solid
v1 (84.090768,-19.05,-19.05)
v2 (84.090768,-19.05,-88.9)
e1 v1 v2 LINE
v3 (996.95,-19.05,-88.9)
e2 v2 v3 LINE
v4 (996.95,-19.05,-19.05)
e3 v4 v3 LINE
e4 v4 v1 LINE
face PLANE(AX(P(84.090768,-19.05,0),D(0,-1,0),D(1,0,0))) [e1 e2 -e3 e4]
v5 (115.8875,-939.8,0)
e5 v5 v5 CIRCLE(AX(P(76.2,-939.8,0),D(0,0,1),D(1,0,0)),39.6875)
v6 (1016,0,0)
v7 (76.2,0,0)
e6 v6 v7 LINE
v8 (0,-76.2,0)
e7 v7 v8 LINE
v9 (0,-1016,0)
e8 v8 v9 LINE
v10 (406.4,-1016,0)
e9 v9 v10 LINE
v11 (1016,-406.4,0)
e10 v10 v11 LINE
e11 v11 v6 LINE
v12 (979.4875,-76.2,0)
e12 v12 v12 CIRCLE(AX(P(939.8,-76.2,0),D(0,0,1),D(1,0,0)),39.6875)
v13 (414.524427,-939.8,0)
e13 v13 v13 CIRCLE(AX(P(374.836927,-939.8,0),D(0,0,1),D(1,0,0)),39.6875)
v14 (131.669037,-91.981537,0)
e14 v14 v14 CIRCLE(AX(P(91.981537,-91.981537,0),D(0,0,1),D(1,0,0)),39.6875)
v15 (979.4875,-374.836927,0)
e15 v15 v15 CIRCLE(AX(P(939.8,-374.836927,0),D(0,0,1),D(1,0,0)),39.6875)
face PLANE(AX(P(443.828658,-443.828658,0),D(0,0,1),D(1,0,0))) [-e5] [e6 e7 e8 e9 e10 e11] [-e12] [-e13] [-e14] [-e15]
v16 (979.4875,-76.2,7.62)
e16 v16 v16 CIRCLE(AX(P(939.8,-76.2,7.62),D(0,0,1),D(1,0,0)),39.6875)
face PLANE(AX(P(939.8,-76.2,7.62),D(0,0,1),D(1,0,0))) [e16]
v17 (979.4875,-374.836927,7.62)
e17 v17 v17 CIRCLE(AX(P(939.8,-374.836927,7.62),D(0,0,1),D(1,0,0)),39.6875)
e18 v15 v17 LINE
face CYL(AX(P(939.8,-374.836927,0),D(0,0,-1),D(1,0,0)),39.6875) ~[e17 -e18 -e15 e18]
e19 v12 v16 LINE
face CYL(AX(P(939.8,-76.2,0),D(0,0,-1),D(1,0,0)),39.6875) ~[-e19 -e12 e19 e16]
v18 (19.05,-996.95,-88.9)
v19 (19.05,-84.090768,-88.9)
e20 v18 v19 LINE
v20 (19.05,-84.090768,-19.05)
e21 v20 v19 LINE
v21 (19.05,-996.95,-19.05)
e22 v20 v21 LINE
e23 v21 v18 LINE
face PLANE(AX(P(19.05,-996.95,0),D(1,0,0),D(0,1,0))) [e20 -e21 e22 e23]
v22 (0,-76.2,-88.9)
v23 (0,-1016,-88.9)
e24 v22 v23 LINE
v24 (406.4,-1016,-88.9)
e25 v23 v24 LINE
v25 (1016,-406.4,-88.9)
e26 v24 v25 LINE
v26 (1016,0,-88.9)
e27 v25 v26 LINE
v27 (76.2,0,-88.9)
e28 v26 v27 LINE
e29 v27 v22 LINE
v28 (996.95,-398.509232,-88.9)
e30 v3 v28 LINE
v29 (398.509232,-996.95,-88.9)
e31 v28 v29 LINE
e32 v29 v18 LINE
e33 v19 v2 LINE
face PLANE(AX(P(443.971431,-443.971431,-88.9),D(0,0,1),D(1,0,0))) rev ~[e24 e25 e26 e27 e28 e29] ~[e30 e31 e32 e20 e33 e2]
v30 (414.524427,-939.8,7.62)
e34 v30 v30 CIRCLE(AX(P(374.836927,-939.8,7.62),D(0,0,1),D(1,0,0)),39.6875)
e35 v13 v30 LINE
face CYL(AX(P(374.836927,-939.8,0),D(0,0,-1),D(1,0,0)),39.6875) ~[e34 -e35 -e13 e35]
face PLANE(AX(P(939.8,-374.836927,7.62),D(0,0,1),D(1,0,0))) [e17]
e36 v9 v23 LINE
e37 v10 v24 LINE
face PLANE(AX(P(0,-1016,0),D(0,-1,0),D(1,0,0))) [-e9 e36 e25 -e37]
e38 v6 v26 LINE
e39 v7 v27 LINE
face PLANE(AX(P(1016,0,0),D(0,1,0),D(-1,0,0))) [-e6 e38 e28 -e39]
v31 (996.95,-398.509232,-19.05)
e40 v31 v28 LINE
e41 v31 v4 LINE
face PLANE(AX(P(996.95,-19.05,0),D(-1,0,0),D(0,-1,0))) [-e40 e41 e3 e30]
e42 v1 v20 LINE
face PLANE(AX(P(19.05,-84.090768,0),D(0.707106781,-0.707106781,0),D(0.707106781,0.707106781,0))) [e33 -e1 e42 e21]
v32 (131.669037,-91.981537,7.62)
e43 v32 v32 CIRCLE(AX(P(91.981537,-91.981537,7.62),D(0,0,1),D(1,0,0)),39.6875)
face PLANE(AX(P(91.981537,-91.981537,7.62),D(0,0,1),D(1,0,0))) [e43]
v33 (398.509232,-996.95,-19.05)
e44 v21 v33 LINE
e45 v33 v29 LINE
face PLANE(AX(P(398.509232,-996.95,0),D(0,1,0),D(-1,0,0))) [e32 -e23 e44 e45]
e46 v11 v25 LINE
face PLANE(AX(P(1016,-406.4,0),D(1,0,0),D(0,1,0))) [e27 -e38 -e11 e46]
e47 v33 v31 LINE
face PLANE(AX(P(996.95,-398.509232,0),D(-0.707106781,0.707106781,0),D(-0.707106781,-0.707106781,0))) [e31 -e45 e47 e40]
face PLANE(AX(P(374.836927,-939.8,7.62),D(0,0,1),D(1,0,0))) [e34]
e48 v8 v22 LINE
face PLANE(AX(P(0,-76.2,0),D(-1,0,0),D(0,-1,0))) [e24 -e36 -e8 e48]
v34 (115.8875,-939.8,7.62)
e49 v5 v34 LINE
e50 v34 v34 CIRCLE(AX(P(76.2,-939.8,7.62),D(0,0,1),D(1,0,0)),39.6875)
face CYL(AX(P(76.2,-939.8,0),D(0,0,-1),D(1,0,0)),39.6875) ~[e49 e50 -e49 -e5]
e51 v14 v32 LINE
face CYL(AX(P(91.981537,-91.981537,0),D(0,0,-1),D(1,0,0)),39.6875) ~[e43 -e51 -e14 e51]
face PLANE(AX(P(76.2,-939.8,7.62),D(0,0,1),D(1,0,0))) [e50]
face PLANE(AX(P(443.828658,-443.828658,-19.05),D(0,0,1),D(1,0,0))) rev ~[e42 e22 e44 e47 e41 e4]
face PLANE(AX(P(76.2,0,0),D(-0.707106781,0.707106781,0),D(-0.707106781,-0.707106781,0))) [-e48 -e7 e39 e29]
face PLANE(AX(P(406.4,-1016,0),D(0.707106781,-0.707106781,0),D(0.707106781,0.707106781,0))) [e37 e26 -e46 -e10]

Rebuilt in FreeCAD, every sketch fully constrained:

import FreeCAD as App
import Part
import Sketcher
Q = App.Units.Quantity

doc = App.newDocument("Part")
body = doc.addObject("PartDesign::Body", "Body")

sketch1 = body.newObject("Sketcher::SketchObject", "Sketch")
sketch1.AttachmentSupport = (doc.getObject("XY_Plane"), [""])
sketch1.MapMode = "FlatFace"
sketch1.addGeometry([
    Part.LineSegment(App.Vector(0, -76.2, 0), App.Vector(0, -1016, 0)),
    Part.LineSegment(App.Vector(0, -1016, 0), App.Vector(406.4, -1016, 0)),
    Part.LineSegment(App.Vector(406.4, -1016, 0), App.Vector(1016, -406.4, 0)),
    Part.LineSegment(App.Vector(1016, -406.4, 0), App.Vector(1016, 0, 0)),
    Part.LineSegment(App.Vector(1016, 0, 0), App.Vector(76.2, 0, 0)),
    Part.LineSegment(App.Vector(76.2, 0, 0), App.Vector(0, -76.2, 0)),
    Part.LineSegment(App.Vector(996.95, -398.509232, 0), App.Vector(398.509232, -996.95, 0)),
    Part.LineSegment(App.Vector(398.509232, -996.95, 0), App.Vector(19.05, -996.95, 0)),
    Part.LineSegment(App.Vector(19.05, -996.95, 0), App.Vector(19.05, -84.090768, 0)),
    Part.LineSegment(App.Vector(19.05, -84.090768, 0), App.Vector(84.090768, -19.05, 0)),
    Part.LineSegment(App.Vector(84.090768, -19.05, 0), App.Vector(996.95, -19.05, 0)),
    Part.LineSegment(App.Vector(996.95, -19.05, 0), App.Vector(996.95, -398.509232, 0)),
], False)
sketch1.addConstraint([
    Sketcher.Constraint("Coincident", 0, 2, 1, 1),
    Sketcher.Constraint("Coincident", 1, 2, 2, 1),
    Sketcher.Constraint("Coincident", 2, 2, 3, 1),
    Sketcher.Constraint("Coincident", 3, 2, 4, 1),
    Sketcher.Constraint("Coincident", 4, 2, 5, 1),
    Sketcher.Constraint("Coincident", 5, 2, 0, 1),
    Sketcher.Constraint("Coincident", 6, 2, 7, 1),
    Sketcher.Constraint("Coincident", 7, 2, 8, 1),
    Sketcher.Constraint("Coincident", 8, 2, 9, 1),
    Sketcher.Constraint("Coincident", 9, 2, 10, 1),
    Sketcher.Constraint("Coincident", 10, 2, 11, 1),
    Sketcher.Constraint("Coincident", 11, 2, 6, 1),
    Sketcher.Constraint("Vertical", 0),
    Sketcher.Constraint("Horizontal", 1),
    Sketcher.Constraint("Vertical", 3),
    Sketcher.Constraint("Horizontal", 4),
    Sketcher.Constraint("Horizontal", 7),
    Sketcher.Constraint("Vertical", 8),
    Sketcher.Constraint("Horizontal", 10),
    Sketcher.Constraint("Vertical", 11),
    Sketcher.Constraint("PointOnObject", 0, 2, -2),
    Sketcher.Constraint("PointOnObject", 3, 2, -1),
    Sketcher.Constraint("Parallel", 2, 5),
    Sketcher.Constraint("Parallel", 5, 6),
    Sketcher.Constraint("Parallel", 6, 9),
    Sketcher.Constraint("Equal", 4, 0),
    Sketcher.Constraint("Equal", 1, 3),
    Sketcher.Constraint("Equal", 10, 8),
    Sketcher.Constraint("DistanceX", 1, 1, 1, 2, Q("16 in")),
    Sketcher.Constraint("DistanceX", 4, 2, 4, 1, Q("37 in")),
    Sketcher.Constraint("DistanceY", 0, 2, -1, 1, Q("40 in")),
    Sketcher.Constraint("DistanceY", 7, 2, 9, 2, Q("38.5 in")),
    Sketcher.Constraint("DistanceY", 6, 2, -1, 1, Q("39.25 in")),
    Sketcher.Constraint("DistanceX", -1, 1, 7, 2, Q("0.75 in")),
    Sketcher.Constraint("DistanceX", 7, 2, 7, 1, 379.459232),
    Sketcher.Constraint("DistanceX", 10, 1, 10, 2, 912.859232),
])
pad1 = body.newObject("PartDesign::Pad", "Pad")
pad1.Profile = sketch1
pad1.Length = Q("3.5 in")
pad1.Reversed = True

sketch2 = body.newObject("Sketcher::SketchObject", "Sketch001")
sketch2.AttachmentSupport = (doc.getObject("XY_Plane"), [""])
sketch2.MapMode = "FlatFace"
sketch2.addGeometry([
    Part.LineSegment(App.Vector(19.05, -84.090768, 0), App.Vector(19.05, -996.95, 0)),
    Part.LineSegment(App.Vector(19.05, -996.95, 0), App.Vector(398.509232, -996.95, 0)),
    Part.LineSegment(App.Vector(398.509232, -996.95, 0), App.Vector(996.95, -398.509232, 0)),
    Part.LineSegment(App.Vector(996.95, -398.509232, 0), App.Vector(996.95, -19.05, 0)),
    Part.LineSegment(App.Vector(996.95, -19.05, 0), App.Vector(84.090768, -19.05, 0)),
    Part.LineSegment(App.Vector(84.090768, -19.05, 0), App.Vector(19.05, -84.090768, 0)),
], False)
sketch2.addConstraint([
    Sketcher.Constraint("Coincident", 0, 2, 1, 1),
    Sketcher.Constraint("Coincident", 1, 2, 2, 1),
    Sketcher.Constraint("Coincident", 2, 2, 3, 1),
    Sketcher.Constraint("Coincident", 3, 2, 4, 1),
    Sketcher.Constraint("Coincident", 4, 2, 5, 1),
    Sketcher.Constraint("Coincident", 5, 2, 0, 1),
    Sketcher.Constraint("Vertical", 0),
    Sketcher.Constraint("Horizontal", 1),
    Sketcher.Constraint("Vertical", 3),
    Sketcher.Constraint("Horizontal", 4),
    Sketcher.Constraint("Parallel", 2, 5),
    Sketcher.Constraint("Equal", 4, 0),
    Sketcher.Constraint("Equal", 1, 3),
    Sketcher.Constraint("DistanceX", 0, 2, 2, 2, Q("38.5 in")),
    Sketcher.Constraint("DistanceX", -1, 1, 0, 2, Q("0.75 in")),
    Sketcher.Constraint("DistanceY", 0, 2, -1, 1, Q("39.25 in")),
    Sketcher.Constraint("DistanceX", 1, 1, 1, 2, 379.459232),
    Sketcher.Constraint("DistanceX", 4, 2, 4, 1, 912.859232),
])
pad2 = body.newObject("PartDesign::Pad", "Pad001")
pad2.Profile = sketch2
pad2.Length = Q("0.75 in")
pad2.Reversed = True

sketch3 = body.newObject("Sketcher::SketchObject", "Sketch002")
sketch3.AttachmentSupport = (doc.getObject("XY_Plane"), [""])
sketch3.MapMode = "FlatFace"
sketch3.addGeometry([
    Part.Circle(App.Vector(76.2, -939.8, 0), App.Vector(0, 0, 1), 39.6875),
    Part.Circle(App.Vector(91.981537, -91.981537, 0), App.Vector(0, 0, 1), 39.6875),
    Part.Circle(App.Vector(374.836927, -939.8, 0), App.Vector(0, 0, 1), 39.6875),
    Part.Circle(App.Vector(939.8, -374.836927, 0), App.Vector(0, 0, 1), 39.6875),
    Part.Circle(App.Vector(939.8, -76.2, 0), App.Vector(0, 0, 1), 39.6875),
], False)
sketch3.addConstraint([
    Sketcher.Constraint("Equal", 0, 1),
    Sketcher.Constraint("Equal", 1, 2),
    Sketcher.Constraint("Equal", 2, 3),
    Sketcher.Constraint("Equal", 3, 4),
    Sketcher.Constraint("Horizontal", 0, 3, 2, 3),
    Sketcher.Constraint("Vertical", 3, 3, 4, 3),
    Sketcher.Constraint("Diameter", 0, Q("3.125 in")),
    Sketcher.Constraint("DistanceX", -1, 1, 0, 3, Q("3 in")),
    Sketcher.Constraint("DistanceY", 0, 3, -1, 1, Q("37 in")),
    Sketcher.Constraint("DistanceX", -1, 1, 3, 3, Q("37 in")),
    Sketcher.Constraint("DistanceY", 4, 3, -1, 1, Q("3 in")),
    Sketcher.Constraint("DistanceX", 1, 3, 2, 3, 282.85539),
    Sketcher.Constraint("DistanceY", 3, 3, 1, 3, 282.85539),
    Sketcher.Constraint("DistanceX", -1, 1, 1, 3, 91.981537),
    Sketcher.Constraint("DistanceY", 1, 3, -1, 1, 91.981537),
])
pad3 = body.newObject("PartDesign::Pad", "Pad002")
pad3.Profile = sketch3
pad3.Length = Q("0.3 in")

doc.recompute()
